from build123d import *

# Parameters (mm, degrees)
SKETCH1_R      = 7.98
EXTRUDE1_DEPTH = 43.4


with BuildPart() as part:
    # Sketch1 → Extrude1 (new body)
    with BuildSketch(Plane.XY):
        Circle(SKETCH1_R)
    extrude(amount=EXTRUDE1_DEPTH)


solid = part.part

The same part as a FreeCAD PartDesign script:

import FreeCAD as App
import Part
import Sketcher
from FreeCAD import Vector

doc = App.newDocument("Part")
body = doc.addObject("PartDesign::Body", "Body")

# Sketch on XY plane
sketch1 = body.newObject("Sketcher::SketchObject", "Sketch")
sketch1.AttachmentSupport = (doc.getObject("XY_Plane"), [""])
sketch1.MapMode = "FlatFace"
sketch1.addGeometry(Part.Circle(Vector(0, 0, 0), Vector(0, 0, 1), 8), False)
sketch1.addConstraint([
    Sketcher.Constraint("Coincident", 0, 3, -1, 1),
    Sketcher.Constraint("Diameter", 0, 15.96),
])
pad1 = body.newObject("PartDesign::Pad", "Pad")
pad1.Profile = sketch1
pad1.Length = 43.4

doc.recompute()
